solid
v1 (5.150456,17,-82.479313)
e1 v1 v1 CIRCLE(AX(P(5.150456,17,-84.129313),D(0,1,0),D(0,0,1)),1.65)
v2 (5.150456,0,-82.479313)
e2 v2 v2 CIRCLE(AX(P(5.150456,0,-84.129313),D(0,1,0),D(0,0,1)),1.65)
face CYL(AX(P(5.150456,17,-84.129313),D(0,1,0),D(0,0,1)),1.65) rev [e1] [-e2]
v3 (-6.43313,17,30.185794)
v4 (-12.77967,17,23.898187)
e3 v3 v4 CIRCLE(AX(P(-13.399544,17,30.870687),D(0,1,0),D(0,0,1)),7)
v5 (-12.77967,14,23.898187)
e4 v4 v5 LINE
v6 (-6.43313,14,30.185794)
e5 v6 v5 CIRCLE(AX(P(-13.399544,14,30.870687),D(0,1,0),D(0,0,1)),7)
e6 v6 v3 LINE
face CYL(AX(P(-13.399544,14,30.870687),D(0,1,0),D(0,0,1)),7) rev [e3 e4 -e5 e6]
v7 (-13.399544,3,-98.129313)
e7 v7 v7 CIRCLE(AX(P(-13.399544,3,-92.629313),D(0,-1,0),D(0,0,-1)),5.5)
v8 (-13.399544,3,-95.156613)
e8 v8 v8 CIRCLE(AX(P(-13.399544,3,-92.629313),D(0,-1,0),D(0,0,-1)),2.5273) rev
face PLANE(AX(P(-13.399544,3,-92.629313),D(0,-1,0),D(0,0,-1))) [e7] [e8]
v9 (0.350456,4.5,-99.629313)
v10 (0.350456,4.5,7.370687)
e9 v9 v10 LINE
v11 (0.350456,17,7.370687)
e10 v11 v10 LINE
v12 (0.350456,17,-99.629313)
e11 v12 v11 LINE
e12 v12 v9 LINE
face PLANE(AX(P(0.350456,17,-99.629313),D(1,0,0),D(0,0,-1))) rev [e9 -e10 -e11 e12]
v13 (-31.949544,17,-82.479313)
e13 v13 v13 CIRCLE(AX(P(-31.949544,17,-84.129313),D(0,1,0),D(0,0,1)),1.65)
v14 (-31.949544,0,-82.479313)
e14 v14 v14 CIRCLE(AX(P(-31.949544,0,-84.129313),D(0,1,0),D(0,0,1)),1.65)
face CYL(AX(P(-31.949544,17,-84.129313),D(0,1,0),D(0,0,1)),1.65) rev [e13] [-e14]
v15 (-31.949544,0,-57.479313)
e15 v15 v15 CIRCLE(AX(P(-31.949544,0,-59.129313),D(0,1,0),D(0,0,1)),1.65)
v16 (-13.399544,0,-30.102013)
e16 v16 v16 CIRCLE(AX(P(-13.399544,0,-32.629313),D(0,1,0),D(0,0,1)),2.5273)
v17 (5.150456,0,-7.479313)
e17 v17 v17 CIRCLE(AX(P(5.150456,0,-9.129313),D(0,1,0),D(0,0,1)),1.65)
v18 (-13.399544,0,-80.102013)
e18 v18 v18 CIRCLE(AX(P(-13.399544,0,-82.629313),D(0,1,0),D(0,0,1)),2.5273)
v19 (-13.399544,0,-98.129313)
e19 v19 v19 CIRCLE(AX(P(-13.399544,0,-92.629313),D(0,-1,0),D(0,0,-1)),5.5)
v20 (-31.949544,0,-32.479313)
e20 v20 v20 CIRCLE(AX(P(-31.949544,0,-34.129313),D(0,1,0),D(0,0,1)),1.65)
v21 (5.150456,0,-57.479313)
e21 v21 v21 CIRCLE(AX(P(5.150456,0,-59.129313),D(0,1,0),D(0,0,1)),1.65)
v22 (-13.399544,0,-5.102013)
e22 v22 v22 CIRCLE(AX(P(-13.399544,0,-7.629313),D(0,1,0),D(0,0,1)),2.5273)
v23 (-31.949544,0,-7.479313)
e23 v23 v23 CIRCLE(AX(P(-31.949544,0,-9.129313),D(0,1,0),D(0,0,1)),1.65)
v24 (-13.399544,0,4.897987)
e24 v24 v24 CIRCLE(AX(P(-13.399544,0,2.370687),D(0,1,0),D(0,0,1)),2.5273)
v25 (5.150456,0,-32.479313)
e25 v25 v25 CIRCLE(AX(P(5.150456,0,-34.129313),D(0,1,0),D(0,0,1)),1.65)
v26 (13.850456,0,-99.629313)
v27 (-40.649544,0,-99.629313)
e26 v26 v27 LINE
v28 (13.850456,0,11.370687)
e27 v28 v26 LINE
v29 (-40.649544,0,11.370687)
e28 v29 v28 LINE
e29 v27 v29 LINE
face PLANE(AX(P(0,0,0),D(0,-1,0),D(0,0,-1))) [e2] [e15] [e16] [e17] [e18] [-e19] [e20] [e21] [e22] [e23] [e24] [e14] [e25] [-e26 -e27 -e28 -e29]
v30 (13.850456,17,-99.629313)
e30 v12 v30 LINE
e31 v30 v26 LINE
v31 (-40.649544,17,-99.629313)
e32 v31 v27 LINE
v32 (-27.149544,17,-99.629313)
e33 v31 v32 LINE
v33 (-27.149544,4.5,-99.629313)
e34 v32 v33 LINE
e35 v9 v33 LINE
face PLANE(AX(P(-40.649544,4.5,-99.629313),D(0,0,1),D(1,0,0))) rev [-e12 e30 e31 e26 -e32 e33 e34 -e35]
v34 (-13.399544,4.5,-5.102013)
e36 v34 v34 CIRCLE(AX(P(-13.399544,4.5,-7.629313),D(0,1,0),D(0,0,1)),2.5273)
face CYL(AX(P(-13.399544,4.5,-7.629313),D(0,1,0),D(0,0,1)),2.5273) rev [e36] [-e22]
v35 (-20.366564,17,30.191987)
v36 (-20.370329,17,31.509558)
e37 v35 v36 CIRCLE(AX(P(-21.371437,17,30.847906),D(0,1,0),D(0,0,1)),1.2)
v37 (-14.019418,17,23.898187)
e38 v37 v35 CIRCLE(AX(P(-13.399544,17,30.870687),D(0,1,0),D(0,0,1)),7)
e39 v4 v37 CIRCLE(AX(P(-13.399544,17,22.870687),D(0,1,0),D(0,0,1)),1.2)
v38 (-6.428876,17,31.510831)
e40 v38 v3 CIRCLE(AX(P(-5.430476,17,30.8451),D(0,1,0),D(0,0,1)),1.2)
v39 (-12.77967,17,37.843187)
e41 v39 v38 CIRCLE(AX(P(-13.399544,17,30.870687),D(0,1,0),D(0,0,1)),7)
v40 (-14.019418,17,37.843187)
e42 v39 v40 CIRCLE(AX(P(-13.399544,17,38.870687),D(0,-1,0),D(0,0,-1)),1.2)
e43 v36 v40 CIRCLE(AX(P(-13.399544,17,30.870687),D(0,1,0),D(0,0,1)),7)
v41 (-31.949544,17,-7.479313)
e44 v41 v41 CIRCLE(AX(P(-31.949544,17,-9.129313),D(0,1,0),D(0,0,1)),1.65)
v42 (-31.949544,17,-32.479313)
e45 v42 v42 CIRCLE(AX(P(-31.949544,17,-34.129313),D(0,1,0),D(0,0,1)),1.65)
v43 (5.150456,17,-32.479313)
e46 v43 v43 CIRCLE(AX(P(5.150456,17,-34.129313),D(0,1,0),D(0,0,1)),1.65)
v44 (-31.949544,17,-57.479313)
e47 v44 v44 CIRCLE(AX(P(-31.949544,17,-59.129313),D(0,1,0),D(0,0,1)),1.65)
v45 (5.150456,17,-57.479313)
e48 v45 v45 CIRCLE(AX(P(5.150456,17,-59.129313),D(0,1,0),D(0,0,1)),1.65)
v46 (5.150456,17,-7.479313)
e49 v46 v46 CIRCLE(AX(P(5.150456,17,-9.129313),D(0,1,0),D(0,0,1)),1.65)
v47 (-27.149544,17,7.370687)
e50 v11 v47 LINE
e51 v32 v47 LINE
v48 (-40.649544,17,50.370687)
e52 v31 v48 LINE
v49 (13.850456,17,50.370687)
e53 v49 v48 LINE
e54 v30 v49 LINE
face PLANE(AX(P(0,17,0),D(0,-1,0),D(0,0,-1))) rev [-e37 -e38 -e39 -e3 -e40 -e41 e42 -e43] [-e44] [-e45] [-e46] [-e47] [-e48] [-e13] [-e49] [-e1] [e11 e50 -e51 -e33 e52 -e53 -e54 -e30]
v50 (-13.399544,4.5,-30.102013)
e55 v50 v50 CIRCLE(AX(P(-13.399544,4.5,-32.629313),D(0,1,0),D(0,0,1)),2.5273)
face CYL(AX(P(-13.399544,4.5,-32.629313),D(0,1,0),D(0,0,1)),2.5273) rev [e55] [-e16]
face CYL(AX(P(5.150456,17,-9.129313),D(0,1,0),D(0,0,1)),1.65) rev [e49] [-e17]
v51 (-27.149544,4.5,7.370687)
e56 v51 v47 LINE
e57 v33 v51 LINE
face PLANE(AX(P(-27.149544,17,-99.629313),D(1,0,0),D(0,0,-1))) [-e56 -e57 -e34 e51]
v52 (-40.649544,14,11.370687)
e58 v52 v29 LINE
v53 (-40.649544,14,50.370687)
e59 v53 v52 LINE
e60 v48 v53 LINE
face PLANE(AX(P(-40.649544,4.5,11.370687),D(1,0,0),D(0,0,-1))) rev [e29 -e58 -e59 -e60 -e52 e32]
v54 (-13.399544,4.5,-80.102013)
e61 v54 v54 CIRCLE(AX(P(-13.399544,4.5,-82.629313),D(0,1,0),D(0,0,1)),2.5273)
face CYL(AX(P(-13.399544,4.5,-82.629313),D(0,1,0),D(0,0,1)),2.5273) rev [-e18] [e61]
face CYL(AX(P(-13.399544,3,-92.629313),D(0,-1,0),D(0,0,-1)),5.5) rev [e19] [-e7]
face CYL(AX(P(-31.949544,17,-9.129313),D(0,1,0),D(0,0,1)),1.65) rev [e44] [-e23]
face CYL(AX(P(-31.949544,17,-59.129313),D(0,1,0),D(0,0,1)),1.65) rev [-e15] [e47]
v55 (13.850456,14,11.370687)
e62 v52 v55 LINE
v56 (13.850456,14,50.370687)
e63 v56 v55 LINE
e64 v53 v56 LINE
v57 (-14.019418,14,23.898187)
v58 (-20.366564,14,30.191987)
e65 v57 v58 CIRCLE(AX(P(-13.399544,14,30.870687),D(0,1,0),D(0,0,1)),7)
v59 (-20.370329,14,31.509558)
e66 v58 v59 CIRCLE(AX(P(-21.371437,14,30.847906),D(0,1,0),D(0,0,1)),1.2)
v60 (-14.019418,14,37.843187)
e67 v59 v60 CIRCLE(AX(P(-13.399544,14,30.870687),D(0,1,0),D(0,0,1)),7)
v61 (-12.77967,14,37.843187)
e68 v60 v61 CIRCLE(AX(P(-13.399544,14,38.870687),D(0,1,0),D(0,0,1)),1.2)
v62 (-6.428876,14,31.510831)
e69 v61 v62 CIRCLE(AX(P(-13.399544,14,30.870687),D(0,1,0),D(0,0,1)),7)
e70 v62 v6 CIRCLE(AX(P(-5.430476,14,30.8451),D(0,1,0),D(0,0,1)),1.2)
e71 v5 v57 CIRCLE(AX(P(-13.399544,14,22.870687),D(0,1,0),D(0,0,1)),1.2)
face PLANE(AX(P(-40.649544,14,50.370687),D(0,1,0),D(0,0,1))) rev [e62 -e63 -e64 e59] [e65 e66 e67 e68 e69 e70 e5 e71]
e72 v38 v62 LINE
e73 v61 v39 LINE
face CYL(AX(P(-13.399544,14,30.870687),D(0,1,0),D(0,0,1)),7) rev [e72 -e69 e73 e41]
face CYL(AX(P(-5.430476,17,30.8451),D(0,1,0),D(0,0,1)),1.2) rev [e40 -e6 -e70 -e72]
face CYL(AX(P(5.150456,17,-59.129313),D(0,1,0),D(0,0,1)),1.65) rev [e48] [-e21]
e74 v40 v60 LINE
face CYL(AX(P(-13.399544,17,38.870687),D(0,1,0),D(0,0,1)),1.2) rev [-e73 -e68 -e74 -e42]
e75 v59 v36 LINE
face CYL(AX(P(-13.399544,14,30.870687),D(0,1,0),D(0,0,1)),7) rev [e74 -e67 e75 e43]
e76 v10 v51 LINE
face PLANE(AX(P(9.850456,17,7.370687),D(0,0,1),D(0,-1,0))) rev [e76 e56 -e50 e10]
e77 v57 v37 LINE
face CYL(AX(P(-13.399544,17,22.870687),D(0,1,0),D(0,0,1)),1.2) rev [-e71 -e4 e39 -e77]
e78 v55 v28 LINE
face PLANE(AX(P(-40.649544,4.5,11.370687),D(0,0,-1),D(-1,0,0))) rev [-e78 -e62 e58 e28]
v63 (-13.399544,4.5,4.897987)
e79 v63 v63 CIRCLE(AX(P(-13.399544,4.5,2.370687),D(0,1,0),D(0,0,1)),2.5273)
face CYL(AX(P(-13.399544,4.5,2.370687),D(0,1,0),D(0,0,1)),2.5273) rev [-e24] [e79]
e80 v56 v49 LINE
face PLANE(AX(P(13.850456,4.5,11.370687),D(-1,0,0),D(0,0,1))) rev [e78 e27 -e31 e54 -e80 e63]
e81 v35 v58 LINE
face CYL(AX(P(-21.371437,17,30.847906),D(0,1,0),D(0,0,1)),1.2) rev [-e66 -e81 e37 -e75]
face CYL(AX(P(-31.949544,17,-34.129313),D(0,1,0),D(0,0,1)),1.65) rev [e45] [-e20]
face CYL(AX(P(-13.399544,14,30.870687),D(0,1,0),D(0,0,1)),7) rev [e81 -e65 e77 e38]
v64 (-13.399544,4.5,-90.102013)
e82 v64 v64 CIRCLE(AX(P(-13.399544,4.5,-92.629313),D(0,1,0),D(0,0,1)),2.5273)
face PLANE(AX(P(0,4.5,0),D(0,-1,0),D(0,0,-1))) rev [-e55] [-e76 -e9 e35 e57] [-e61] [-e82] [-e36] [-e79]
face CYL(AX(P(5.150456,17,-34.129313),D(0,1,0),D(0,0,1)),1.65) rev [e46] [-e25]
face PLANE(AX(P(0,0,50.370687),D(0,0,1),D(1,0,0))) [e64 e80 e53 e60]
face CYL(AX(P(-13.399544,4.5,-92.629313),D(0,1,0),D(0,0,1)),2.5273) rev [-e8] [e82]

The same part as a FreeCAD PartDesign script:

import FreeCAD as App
import Part
import Sketcher


def add_polygon(sketch, points):
    """Adds a closed chain of lines whose ends are joined by coincident constraints."""
    first, n = sketch.GeometryCount, len(points)
    for a, b in zip(points, points[1:] + points[:1]):
        sketch.addGeometry(Part.LineSegment(App.Vector(*a, 0), App.Vector(*b, 0)), False)
    for i in range(n):
        sketch.addConstraint(Sketcher.Constraint("Coincident", first + i, 2, first + (i + 1) % n, 1))

doc = App.newDocument("Part")
params = doc.addObject("Spreadsheet::Sheet", "Params")
for row, (alias, value) in enumerate([
    ("sketch1_height", "111 mm"),
    ("sketch1_width", "54.5 mm"),
    ("pad1_length", "4.5 mm"),
    ("sketch2_height", "111 mm"),
    ("sketch2_width", "13.5 mm"),
    ("pad2_length", "12.5 mm"),
    ("sketch3_diameter", "3.3 mm"),
    ("hole_diameter", "3.3 mm"),
    ("sketch4_height", "4 mm"),
    ("sketch4_width", "12.5 mm"),
    ("pad3_length", "37 mm"),
    ("sketch5_height", "3 mm"),
    ("sketch5_width", "54.5 mm"),
    ("pad4_length", "39 mm"),
    ("sketch6_diameter", "14 mm"),
    ("pocket1_length", "3 mm"),
    ("sketch7_diameter", "2.4 mm"),
    ("hole2_diameter", "2.4 mm"),
    ("hole3_diameter", "5.0546 mm"),
    ("sketch9_diameter", "11 mm"),
    ("pocket2_length", "3 mm"),
], start=1):
    params.set(f"A{row}", alias)
    params.set(f"B{row}", "=" + value)
    params.setAlias(f"B{row}", alias)

body = doc.addObject("PartDesign::Body", "Body")

# Sketch on XZ plane
sketch1 = body.newObject("Sketcher::SketchObject", "Sketch")
sketch1.AttachmentSupport = (doc.getObject("XZ_Plane"), [""])
sketch1.MapMode = "FlatFace"
add_polygon(sketch1, [(-41, -100), (-41, 11), (14, 11), (14, -100)])  # lines 0-3
sketch1.addConstraint([
    Sketcher.Constraint("Vertical", 0),
    Sketcher.Constraint("Horizontal", 1),
    Sketcher.Constraint("Vertical", 2),
    Sketcher.Constraint("Horizontal", 3),
    Sketcher.Constraint("DistanceY", 0, 1, 0, 2, 111.0),
    Sketcher.Constraint("DistanceX", 1, 1, 1, 2, 54.5),
    Sketcher.Constraint("DistanceX", 0, 2, -1, 1, 40.649544),
    Sketcher.Constraint("DistanceY", -1, 1, 0, 2, 11.370687),
])
sketch1.setExpression("Constraints[8]", "Params.sketch1_height")
sketch1.setExpression("Constraints[9]", "Params.sketch1_width")
pad1 = body.newObject("PartDesign::Pad", "Pad")
pad1.Profile = sketch1
pad1.setExpression("Length", "Params.pad1_length")
pad1.Reversed = True

# Sketch on XZ plane
sketch2 = body.newObject("Sketcher::SketchObject", "Sketch001")
sketch2.AttachmentSupport = (doc.getObject("XZ_Plane"), [""])
sketch2.MapMode = "FlatFace"
sketch2.AttachmentOffset = App.Placement(App.Vector(0, 0, -4.5), App.Rotation())
add_polygon(sketch2, [(0, -100), (0, 11), (14, 11), (14, -100)])  # lines 0-3
add_polygon(sketch2, [(-41, -100), (-41, 11), (-27, 11), (-27, -100)])  # lines 4-7
sketch2.addConstraint([
    Sketcher.Constraint("Vertical", 0),
    Sketcher.Constraint("Horizontal", 1),
    Sketcher.Constraint("Vertical", 2),
    Sketcher.Constraint("Horizontal", 3),
    Sketcher.Constraint("Vertical", 4),
    Sketcher.Constraint("Horizontal", 5),
    Sketcher.Constraint("Vertical", 6),
    Sketcher.Constraint("Horizontal", 7),
    Sketcher.Constraint("Horizontal", 1, 2, 4, 2),
    Sketcher.Constraint("Horizontal", 3, 2, 6, 2),
    Sketcher.Constraint("Equal", 3, 5),
    Sketcher.Constraint("DistanceY", 0, 1, 0, 2, 111.0),
    Sketcher.Constraint("DistanceX", 1, 1, 1, 2, 13.5),
    Sketcher.Constraint("DistanceX", 4, 2, 0, 2, 41.0),
    Sketcher.Constraint("DistanceX", -1, 1, 0, 2, 0.350456),
    Sketcher.Constraint("DistanceY", -1, 1, 0, 2, 11.370687),
])
sketch2.setExpression("Constraints[19]", "Params.sketch2_height")
sketch2.setExpression("Constraints[20]", "Params.sketch2_width")
pad2 = body.newObject("PartDesign::Pad", "Pad001")
pad2.Profile = sketch2
pad2.setExpression("Length", "Params.pad2_length")
pad2.Reversed = True

# Sketch on XZ plane
sketch3 = body.newObject("Sketcher::SketchObject", "Sketch002")
sketch3.AttachmentSupport = (doc.getObject("XZ_Plane"), [""])
sketch3.MapMode = "FlatFace"
sketch3.AttachmentOffset = App.Placement(App.Vector(0, 0, -17), App.Rotation())
sketch3.addGeometry([
    Part.Circle(App.Vector(-31.9, -9.1, 0), App.Vector(0, 0, 1), 1.6),  # 0
    Part.Circle(App.Vector(-31.9, -34.1, 0), App.Vector(0, 0, 1), 1.6),  # 1
    Part.Circle(App.Vector(-31.9, -59.1, 0), App.Vector(0, 0, 1), 1.6),  # 2
    Part.Circle(App.Vector(-31.9, -84.1, 0), App.Vector(0, 0, 1), 1.6),  # 3
    Part.Circle(App.Vector(5.2, -9.1, 0), App.Vector(0, 0, 1), 1.6),  # 4
    Part.Circle(App.Vector(5.2, -34.1, 0), App.Vector(0, 0, 1), 1.6),  # 5
    Part.Circle(App.Vector(5.2, -59.1, 0), App.Vector(0, 0, 1), 1.6),  # 6
    Part.Circle(App.Vector(5.2, -84.1, 0), App.Vector(0, 0, 1), 1.6),  # 7
], False)
sketch3.addConstraint([
    Sketcher.Constraint("Equal", 0, 1),
    Sketcher.Constraint("Equal", 1, 2),
    Sketcher.Constraint("Equal", 2, 3),
    Sketcher.Constraint("Equal", 3, 4),
    Sketcher.Constraint("Equal", 4, 5),
    Sketcher.Constraint("Equal", 5, 6),
    Sketcher.Constraint("Equal", 6, 7),
    Sketcher.Constraint("Horizontal", 0, 3, 4, 3),
    Sketcher.Constraint("Horizontal", 1, 3, 5, 3),
    Sketcher.Constraint("Horizontal", 2, 3, 6, 3),
    Sketcher.Constraint("Horizontal", 3, 3, 7, 3),
    Sketcher.Constraint("Vertical", 0, 3, 1, 3),
    Sketcher.Constraint("Vertical", 1, 3, 2, 3),
    Sketcher.Constraint("Vertical", 2, 3, 3, 3),
    Sketcher.Constraint("Vertical", 4, 3, 5, 3),
    Sketcher.Constraint("Vertical", 5, 3, 6, 3),
    Sketcher.Constraint("Vertical", 6, 3, 7, 3),
    Sketcher.Constraint("Diameter", 0, 3.3),
    Sketcher.Constraint("DistanceY", 1, 3, 0, 3, 25.0),
    Sketcher.Constraint("DistanceY", 2, 3, 1, 3, 25.0),
    Sketcher.Constraint("DistanceY", 3, 3, 2, 3, 25.0),
    Sketcher.Constraint("DistanceX", 0, 3, 4, 3, 37.1),
    Sketcher.Constraint("DistanceX", 0, 3, -1, 1, 31.949544),
    Sketcher.Constraint("DistanceY", 0, 3, -1, 1, 9.129313),
])
sketch3.setExpression("Constraints[17]", "Params.sketch3_diameter")
doc.recompute()
hole = body.newObject("PartDesign::Hole", "Hole")
hole.Profile = sketch3
hole.ThreadType = "None"
hole.setExpression("Diameter", "Params.hole_diameter")
hole.DepthType = "ThroughAll"
hole.Reversed = True

# Sketch on YZ plane
sketch4 = body.newObject("Sketcher::SketchObject", "Sketch003")
sketch4.AttachmentSupport = (doc.getObject("YZ_Plane"), [""])
sketch4.MapMode = "FlatFace"
sketch4.AttachmentOffset = App.Placement(App.Vector(0, 0, -27.149544), App.Rotation())
add_polygon(sketch4, [(17, 11.4), (4.5, 11.4), (4.5, 7.4), (17, 7.4)])  # lines 0-3
sketch4.addConstraint([
    Sketcher.Constraint("Horizontal", 0),
    Sketcher.Constraint("Vertical", 1),
    Sketcher.Constraint("Horizontal", 2),
    Sketcher.Constraint("Vertical", 3),
    Sketcher.Constraint("DistanceY", 1, 2, 1, 1, 4.0),
    Sketcher.Constraint("DistanceX", 0, 2, 0, 1, 12.5),
    Sketcher.Constraint("DistanceX", -1, 1, 2, 2, 17.0),
    Sketcher.Constraint("DistanceY", -1, 1, 0, 2, 11.370687),
])
sketch4.setExpression("Constraints[8]", "Params.sketch4_height")
sketch4.setExpression("Constraints[9]", "Params.sketch4_width")
pad3 = body.newObject("PartDesign::Pad", "Pad002")
pad3.Profile = sketch4
pad3.setExpression("Length", "Params.pad3_length")

# Sketch on XY plane
sketch5 = body.newObject("Sketcher::SketchObject", "Sketch004")
sketch5.AttachmentSupport = (doc.getObject("XY_Plane"), [""])
sketch5.MapMode = "FlatFace"
sketch5.AttachmentOffset = App.Placement(App.Vector(0, 0, 11.370687), App.Rotation())
add_polygon(sketch5, [(-40.6, 17), (-40.6, 14), (13.9, 14), (13.9, 17)])  # lines 0-3
sketch5.addConstraint([
    Sketcher.Constraint("Vertical", 0),
    Sketcher.Constraint("Horizontal", 1),
    Sketcher.Constraint("Vertical", 2),
    Sketcher.Constraint("Horizontal", 3),
    Sketcher.Constraint("DistanceY", 0, 2, 0, 1, 3.0),
    Sketcher.Constraint("DistanceX", 1, 1, 1, 2, 54.5),
    Sketcher.Constraint("DistanceY", -1, 1, 0, 2, 14.0),
    Sketcher.Constraint("DistanceX", 0, 2, -1, 1, 40.649544),
])
sketch5.setExpression("Constraints[8]", "Params.sketch5_height")
sketch5.setExpression("Constraints[9]", "Params.sketch5_width")
pad4 = body.newObject("PartDesign::Pad", "Pad003")
pad4.Profile = sketch5
pad4.setExpression("Length", "Params.pad4_length")

# Sketch on XZ plane
sketch6 = body.newObject("Sketcher::SketchObject", "Sketch005")
sketch6.AttachmentSupport = (doc.getObject("XZ_Plane"), [""])
sketch6.MapMode = "FlatFace"
sketch6.AttachmentOffset = App.Placement(App.Vector(0, 0, -17), App.Rotation())
sketch6.addGeometry(Part.Circle(App.Vector(-13, 31, 0), App.Vector(0, 0, 1), 7), False)
sketch6.addConstraint([
    Sketcher.Constraint("Diameter", 0, 14.0),
    Sketcher.Constraint("DistanceX", 0, 3, -1, 1, 13.399544),
    Sketcher.Constraint("DistanceY", -1, 1, 0, 3, 30.870687),
])
sketch6.setExpression("Constraints[0]", "Params.sketch6_diameter")
pocket1 = body.newObject("PartDesign::Pocket", "Pocket")
pocket1.Profile = sketch6
pocket1.setExpression("Length", "Params.pocket1_length")
pocket1.Reversed = True

# Sketch on XZ plane
sketch7 = body.newObject("Sketcher::SketchObject", "Sketch006")
sketch7.AttachmentSupport = (doc.getObject("XZ_Plane"), [""])
sketch7.MapMode = "FlatFace"
sketch7.AttachmentOffset = App.Placement(App.Vector(0, 0, -17), App.Rotation())
sketch7.addGeometry([
    Part.Circle(App.Vector(-21.4, 30.8, 0), App.Vector(0, 0, 1), 1.2),
    Part.Circle(App.Vector(-13.4, 22.9, 0), App.Vector(0, 0, 1), 1.2),
    Part.Circle(App.Vector(-13.4, 38.9, 0), App.Vector(0, 0, 1), 1.2),
    Part.Circle(App.Vector(-5.4, 30.8, 0), App.Vector(0, 0, 1), 1.2),
], False)
sketch7.addConstraint([
    Sketcher.Constraint("Equal", 0, 1),
    Sketcher.Constraint("Equal", 1, 2),
    Sketcher.Constraint("Equal", 2, 3),
    Sketcher.Constraint("Vertical", 1, 3, 2, 3),
    Sketcher.Constraint("Diameter", 0, 2.4),
    Sketcher.Constraint("DistanceY", 1, 3, 2, 3, 16.0),
    Sketcher.Constraint("DistanceY", -1, 1, 3, 3, 30.8451),
    Sketcher.Constraint("DistanceY", 1, 3, 0, 3, 7.977219),
    Sketcher.Constraint("DistanceX", 1, 3, 3, 3, 7.969068),
    Sketcher.Constraint("DistanceX", 0, 3, 3, 3, 15.940962),
    Sketcher.Constraint("DistanceX", 0, 3, -1, 1, 21.371437),
    Sketcher.Constraint("DistanceY", -1, 1, 0, 3, 30.847906),
])
sketch7.setExpression("Constraints[4]", "Params.sketch7_diameter")
doc.recompute()
hole2 = body.newObject("PartDesign::Hole", "Hole001")
hole2.Profile = sketch7
hole2.ThreadType = "None"
hole2.setExpression("Diameter", "Params.hole2_diameter")
hole2.DepthType = "ThroughAll"
hole2.Reversed = True

# Sketch on XZ plane
sketch8 = body.newObject("Sketcher::SketchObject", "Sketch007")
sketch8.AttachmentSupport = (doc.getObject("XZ_Plane"), [""])
sketch8.MapMode = "FlatFace"
sketch8.AttachmentOffset = App.Placement(App.Vector(0, 0, -4.5), App.Rotation())
sketch8.addGeometry([
    Part.Circle(App.Vector(-13.4, 2.4, 0), App.Vector(0, 0, 1), 2.5),  # 0
    Part.Circle(App.Vector(-13.4, -7.6, 0), App.Vector(0, 0, 1), 2.5),  # 1
    Part.Circle(App.Vector(-13.4, -32.6, 0), App.Vector(0, 0, 1), 2.5),  # 2
    Part.Circle(App.Vector(-13.4, -82.6, 0), App.Vector(0, 0, 1), 2.5),  # 3
    Part.Circle(App.Vector(-13.4, -92.6, 0), App.Vector(0, 0, 1), 2.5),  # 4
], False)
sketch8.addConstraint([
    Sketcher.Constraint("Equal", 0, 1),
    Sketcher.Constraint("Equal", 1, 2),
    Sketcher.Constraint("Equal", 2, 3),
    Sketcher.Constraint("Equal", 3, 4),
    Sketcher.Constraint("Vertical", 0, 3, 1, 3),
    Sketcher.Constraint("Vertical", 1, 3, 2, 3),
    Sketcher.Constraint("Vertical", 2, 3, 3, 3),
    Sketcher.Constraint("Vertical", 3, 3, 4, 3),
    Sketcher.Constraint("DistanceY", 1, 3, 0, 3, 10.0),
    Sketcher.Constraint("DistanceY", 2, 3, 1, 3, 25.0),
    Sketcher.Constraint("DistanceY", 3, 3, 2, 3, 50.0),
    Sketcher.Constraint("DistanceY", 4, 3, 3, 3, 10.0),
    Sketcher.Constraint("Diameter", 0, 5.0546),
    Sketcher.Constraint("DistanceX", 0, 3, -1, 1, 13.399544),
    Sketcher.Constraint("DistanceY", -1, 1, 0, 3, 2.370687),
])
doc.recompute()
hole3 = body.newObject("PartDesign::Hole", "Hole002")
hole3.Profile = sketch8
hole3.ThreadType = "None"
hole3.setExpression("Diameter", "Params.hole3_diameter")
hole3.DepthType = "ThroughAll"
hole3.Reversed = True

# Sketch on XZ plane
sketch9 = body.newObject("Sketcher::SketchObject", "Sketch008")
sketch9.AttachmentSupport = (doc.getObject("XZ_Plane"), [""])
sketch9.MapMode = "FlatFace"
sketch9.addGeometry(Part.Circle(App.Vector(-13, -93, 0), App.Vector(0, 0, 1), 6), False)
sketch9.addConstraint([
    Sketcher.Constraint("Diameter", 0, 11.0),
    Sketcher.Constraint("DistanceX", 0, 3, -1, 1, 13.399544),
    Sketcher.Constraint("DistanceY", 0, 3, -1, 1, 92.629313),
])
sketch9.setExpression("Constraints[0]", "Params.sketch9_diameter")
pocket2 = body.newObject("PartDesign::Pocket", "Pocket001")
pocket2.Profile = sketch9
pocket2.setExpression("Length", "Params.pocket2_length")

doc.recompute()
